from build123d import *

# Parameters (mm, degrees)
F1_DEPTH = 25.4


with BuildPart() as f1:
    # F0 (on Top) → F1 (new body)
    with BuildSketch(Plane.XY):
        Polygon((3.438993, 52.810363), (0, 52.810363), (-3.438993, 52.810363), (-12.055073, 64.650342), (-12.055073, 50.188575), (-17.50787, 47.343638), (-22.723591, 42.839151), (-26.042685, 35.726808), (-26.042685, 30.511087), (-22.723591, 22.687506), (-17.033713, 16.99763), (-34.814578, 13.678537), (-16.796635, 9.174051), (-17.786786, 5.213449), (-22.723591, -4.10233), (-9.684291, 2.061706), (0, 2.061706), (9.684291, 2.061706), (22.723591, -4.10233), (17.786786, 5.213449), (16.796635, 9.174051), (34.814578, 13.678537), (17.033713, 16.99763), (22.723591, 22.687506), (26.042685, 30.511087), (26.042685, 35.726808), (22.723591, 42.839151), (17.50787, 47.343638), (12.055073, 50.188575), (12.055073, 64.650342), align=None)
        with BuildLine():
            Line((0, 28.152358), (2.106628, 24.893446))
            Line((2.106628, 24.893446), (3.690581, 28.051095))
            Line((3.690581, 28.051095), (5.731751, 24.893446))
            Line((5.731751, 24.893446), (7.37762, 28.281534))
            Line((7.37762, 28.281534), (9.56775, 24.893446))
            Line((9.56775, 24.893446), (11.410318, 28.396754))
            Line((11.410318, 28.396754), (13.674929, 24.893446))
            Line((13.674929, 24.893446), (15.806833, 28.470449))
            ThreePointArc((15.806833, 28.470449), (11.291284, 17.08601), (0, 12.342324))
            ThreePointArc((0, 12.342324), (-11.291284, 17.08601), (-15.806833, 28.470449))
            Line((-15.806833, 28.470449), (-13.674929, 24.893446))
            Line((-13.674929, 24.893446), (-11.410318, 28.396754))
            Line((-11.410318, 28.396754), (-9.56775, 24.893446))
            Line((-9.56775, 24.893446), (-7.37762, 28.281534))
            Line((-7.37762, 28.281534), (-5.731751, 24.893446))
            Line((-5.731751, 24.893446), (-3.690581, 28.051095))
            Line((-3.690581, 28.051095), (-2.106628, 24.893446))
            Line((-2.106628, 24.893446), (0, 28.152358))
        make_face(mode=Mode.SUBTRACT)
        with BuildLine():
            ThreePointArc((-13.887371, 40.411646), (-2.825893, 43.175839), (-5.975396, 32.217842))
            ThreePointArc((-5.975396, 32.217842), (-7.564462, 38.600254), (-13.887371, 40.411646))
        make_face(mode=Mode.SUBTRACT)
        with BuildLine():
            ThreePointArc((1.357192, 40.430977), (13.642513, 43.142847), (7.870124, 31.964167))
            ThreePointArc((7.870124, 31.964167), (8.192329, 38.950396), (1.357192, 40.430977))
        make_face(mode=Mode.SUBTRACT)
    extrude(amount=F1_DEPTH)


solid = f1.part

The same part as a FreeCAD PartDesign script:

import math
import FreeCAD as App
import Part
import Sketcher
from FreeCAD import Vector
Q = App.Units.Quantity


def add_polygon(sketch, points):
    """Adds a closed chain of lines whose ends are joined by coincident constraints."""
    first, n = sketch.GeometryCount, len(points)
    for a, b in zip(points, points[1:] + points[:1]):
        sketch.addGeometry(Part.LineSegment(App.Vector(*a, 0), App.Vector(*b, 0)), False)
    for i in range(n):
        sketch.addConstraint(Sketcher.Constraint("Coincident", first + i, 2, first + (i + 1) % n, 1))

doc = App.newDocument("Part")
body = doc.addObject("PartDesign::Body", "Body")

sketch1 = body.newObject("Sketcher::SketchObject", "Sketch")
sketch1.AttachmentSupport = (doc.getObject("XY_Plane"), [""])
sketch1.MapMode = "FlatFace"
add_polygon(sketch1, [(3.4, 52.8), (-3.4, 52.8), (-12.1, 64.7), (-12.1, 50.2), (-17.5, 47.3), (-22.7, 42.8), (-26, 35.7), (-26, 30.5), (-22.7, 22.7), (-17, 17), (-34.8, 13.7), (-16.8, 9.2), (-17.8, 5.2), (-22.7, -4.1), (-9.7, 2.1), (9.7, 2.1), (22.7, -4.1), (17.8, 5.2), (16.8, 9.2), (34.8, 13.7), (17, 17), (22.7, 22.7), (26, 30.5), (26, 35.7), (22.7, 42.8), (17.5, 47.3), (12.1, 50.2), (12.1, 64.7)])
sketch1.addGeometry(Part.LineSegment(Vector(-2.1, 24.9, 0), Vector(0, 28.2, 0)), False)
sketch1.addGeometry(Part.LineSegment(Vector(0, 28.2, 0), Vector(2.1, 24.9, 0)), False)
sketch1.addGeometry(Part.LineSegment(Vector(2.1, 24.9, 0), Vector(3.7, 28.1, 0)), False)
sketch1.addGeometry(Part.LineSegment(Vector(3.7, 28.1, 0), Vector(5.7, 24.9, 0)), False)
sketch1.addGeometry(Part.LineSegment(Vector(5.7, 24.9, 0), Vector(7.4, 28.3, 0)), False)
sketch1.addGeometry(Part.LineSegment(Vector(7.4, 28.3, 0), Vector(9.6, 24.9, 0)), False)
sketch1.addGeometry(Part.LineSegment(Vector(9.6, 24.9, 0), Vector(11.4, 28.4, 0)), False)
sketch1.addGeometry(Part.LineSegment(Vector(11.4, 28.4, 0), Vector(13.7, 24.9, 0)), False)
sketch1.addGeometry(Part.LineSegment(Vector(13.7, 24.9, 0), Vector(15.8, 28.5, 0)), False)
sketch1.addGeometry(Part.ArcOfCircle(Part.Circle(Vector(0, 28.2, 0), Vector(0, 0, 1), 15.8), math.radians(-90), math.radians(1)), False)
sketch1.addGeometry(Part.ArcOfCircle(Part.Circle(Vector(0, 28.2, 0), Vector(0, 0, 1), 15.8), math.radians(179), math.radians(270)), False)
sketch1.addGeometry(Part.LineSegment(Vector(-15.8, 28.5, 0), Vector(-13.7, 24.9, 0)), False)
sketch1.addGeometry(Part.LineSegment(Vector(-13.7, 24.9, 0), Vector(-11.4, 28.4, 0)), False)
sketch1.addGeometry(Part.LineSegment(Vector(-11.4, 28.4, 0), Vector(-9.6, 24.9, 0)), False)
sketch1.addGeometry(Part.LineSegment(Vector(-9.6, 24.9, 0), Vector(-7.4, 28.3, 0)), False)
sketch1.addGeometry(Part.LineSegment(Vector(-7.4, 28.3, 0), Vector(-5.7, 24.9, 0)), False)
sketch1.addGeometry(Part.LineSegment(Vector(-5.7, 24.9, 0), Vector(-3.7, 28.1, 0)), False)
sketch1.addGeometry(Part.LineSegment(Vector(-3.7, 28.1, 0), Vector(-2.1, 24.9, 0)), False)
sketch1.addGeometry(Part.ArcOfCircle(Part.Circle(Vector(-12.3, 34, 0), Vector(0, 0, 1), 6.6), math.radians(-16), math.radians(104)), False)
sketch1.addGeometry(Part.ArcOfCircle(Part.Circle(Vector(-7.6, 38.6, 0), Vector(0, 0, 1), 6.6), math.radians(-76), math.radians(164)), False)
sketch1.addGeometry(Part.ArcOfCircle(Part.Circle(Vector(3.9, 35.6, 0), Vector(0, 0, 1), 5.4), math.radians(-43), math.radians(118)), False)
sketch1.addGeometry(Part.ArcOfCircle(Part.Circle(Vector(8.1, 38.9, 0), Vector(0, 0, 1), 6.9), math.radians(-92), math.radians(167)), False)
sketch1.addConstraint([
    Sketcher.Constraint("Coincident", 28, 2, 29, 1),
    Sketcher.Constraint("Coincident", 29, 2, 30, 1),
    Sketcher.Constraint("Coincident", 30, 2, 31, 1),
    Sketcher.Constraint("Coincident", 31, 2, 32, 1),
    Sketcher.Constraint("Coincident", 32, 2, 33, 1),
    Sketcher.Constraint("Coincident", 33, 2, 34, 1),
    Sketcher.Constraint("Coincident", 34, 2, 35, 1),
    Sketcher.Constraint("Coincident", 35, 2, 36, 1),
    Sketcher.Constraint("Coincident", 36, 2, 37, 2),
    Sketcher.Constraint("Tangent", 37, 1, 38, 2),
    Sketcher.Constraint("Coincident", 38, 1, 39, 1),
    Sketcher.Constraint("Coincident", 39, 2, 40, 1),
    Sketcher.Constraint("Coincident", 40, 2, 41, 1),
    Sketcher.Constraint("Coincident", 41, 2, 42, 1),
    Sketcher.Constraint("Coincident", 42, 2, 43, 1),
    Sketcher.Constraint("Coincident", 43, 2, 44, 1),
    Sketcher.Constraint("Coincident", 44, 2, 45, 1),
    Sketcher.Constraint("Coincident", 45, 2, 28, 1),
    Sketcher.Constraint("Coincident", 46, 1, 47, 1),
    Sketcher.Constraint("Coincident", 47, 2, 46, 2),
    Sketcher.Constraint("Coincident", 48, 1, 49, 1),
    Sketcher.Constraint("Coincident", 49, 2, 48, 2),
    Sketcher.Constraint("Horizontal", 0),
    Sketcher.Constraint("Vertical", 2),
    Sketcher.Constraint("Vertical", 6),
    Sketcher.Constraint("Horizontal", 14),
    Sketcher.Constraint("Vertical", 22),
    Sketcher.Constraint("Vertical", 26),
    Sketcher.Constraint("Coincident", 28, 2, 37, 3),
    Sketcher.Constraint("Equal", 37, 38),
    Sketcher.Constraint("Symmetric", 12, 2, 15, 2, -2),
    Sketcher.Constraint("Symmetric", 11, 2, 16, 2, -2),
    Sketcher.Constraint("Symmetric", 10, 2, 17, 2, -2),
    Sketcher.Constraint("Symmetric", 9, 2, 18, 2, -2),
    Sketcher.Constraint("Symmetric", 8, 2, 19, 2, -2),
    Sketcher.Constraint("Symmetric", 7, 2, 20, 2, -2),
    Sketcher.Constraint("Symmetric", 6, 2, 21, 2, -2),
    Sketcher.Constraint("Symmetric", 4, 2, 23, 2, -2),
    Sketcher.Constraint("Symmetric", 3, 2, 24, 2, -2),
    Sketcher.Constraint("Symmetric", 2, 2, 25, 2, -2),
    Sketcher.Constraint("Symmetric", 36, 2, 38, 1, -2),
    Sketcher.Constraint("Symmetric", 35, 2, 39, 2, -2),
    Sketcher.Constraint("Symmetric", 34, 2, 40, 2, -2),
    Sketcher.Constraint("Symmetric", 33, 2, 41, 2, -2),
    Sketcher.Constraint("Symmetric", 32, 2, 42, 2, -2),
    Sketcher.Constraint("Symmetric", 31, 2, 43, 2, -2),
    Sketcher.Constraint("Symmetric", 30, 2, 44, 2, -2),
    Sketcher.Constraint("Symmetric", 29, 2, 45, 2, -2),
    Sketcher.Constraint("PointOnObject", 37, 1, -2),
    Sketcher.Constraint("Perpendicular", 10, 11),
    Sketcher.Constraint("Perpendicular", 8, 20),
    Sketcher.Constraint("Parallel", 29, 31),
    Sketcher.Constraint("Parallel", 31, 33),
    Sketcher.Constraint("Parallel", 33, 35),
    Sketcher.Constraint("Horizontal", 5, 2, 22, 2),
    Sketcher.Constraint("Horizontal", 1, 2, 26, 2),
    Sketcher.Constraint("Horizontal", 29, 2, 31, 2),
    Sketcher.Constraint("Horizontal", 31, 2, 33, 2),
    Sketcher.Constraint("Horizontal", 33, 2, 35, 2),
    Sketcher.Constraint("Vertical", 4, 2, 7, 2),
    Sketcher.Constraint("Vertical", 7, 2, 12, 2),
    Sketcher.Constraint("Equal", 13, 15),
    Sketcher.Constraint("Equal", 1, 27),
    Sketcher.Constraint("Radius", 49, 6.947679),
    Sketcher.Constraint("DistanceX", -1, 1, 49, 3, Q("0.3202999 in")),
    Sketcher.Constraint("Radius", 37, 15.810034),
    Sketcher.Constraint("Radius", 46, 6.573978),
    Sketcher.Constraint("Radius", 47, 6.580544),
    Sketcher.Constraint("Radius", 48, 5.416564),
    Sketcher.Constraint("DistanceX", 33, 2, 35, 2, Q("0.1617 in")),
    Sketcher.Constraint("Distance", 4, 6.8916),
    Sketcher.Constraint("Distance", 8, 8.046701),
    Sketcher.Constraint("Distance", 32, 3.766699),
    Sketcher.Constraint("DistanceX", 14, 1, 14, 2, 19.368582),
    Sketcher.Constraint("DistanceY", 6, 2, 6, 1, 5.215721),
    Sketcher.Constraint("DistanceY", 38, 3, 48, 3, 7.4955),
    Sketcher.Constraint("DistanceX", 46, 3, 49, 3, 20.429201),
    Sketcher.Constraint("DistanceX", 5, 2, 46, 3, 13.7491),
    Sketcher.Constraint("DistanceY", 7, 2, 5, 2, 13.039302),
    Sketcher.Constraint("DistanceX", 6, 2, 11, 2, 8.255899),
    Sketcher.Constraint("DistanceX", 12, 2, 13, 2, 13.0393),
    Sketcher.Constraint("DistanceY", 13, 2, 7, 2, 20.6258),
    Sketcher.Constraint("DistanceX", 31, 2, 33, 2, 3.835999),
    Sketcher.Constraint("DistanceX", 3, 2, 47, 2, 3.620499),
    Sketcher.Constraint("DistanceX", 47, 2, 2, 2, 1.832298),
    Sketcher.Constraint("Distance", 3, 6.150338),
    Sketcher.Constraint("Distance", 5, 7.848682),
    Sketcher.Constraint("Distance", 10, 18.572471),
    Sketcher.Constraint("Distance", 33, 4.034329),
    Sketcher.Constraint("Distance", 34, 3.958311),
    Sketcher.Constraint("Distance", 36, 4.164128),
    Sketcher.Constraint("DistanceX", 0, 2, 0, 1, 6.877986),
    Sketcher.Constraint("DistanceY", 2, 2, 2, 1, 14.461767),
    Sketcher.Constraint("DistanceY", -1, 1, 37, 3, 28.152358),
    Sketcher.Constraint("DistanceY", -1, 1, 46, 3, 34.033791),
    Sketcher.Constraint("DistanceX", 47, 3, -1, 1, 7.559739),
    Sketcher.Constraint("DistanceX", -1, 1, 48, 3, 3.899031),
    Sketcher.Constraint("DistanceY", -1, 1, 49, 3, 38.906771),
    Sketcher.Constraint("DistanceY", -1, 1, 1, 2, 64.650342),
    Sketcher.Constraint("DistanceX", 3, 2, -1, 1, 17.50787),
    Sketcher.Constraint("DistanceY", -1, 1, 10, 2, 9.174051),
    Sketcher.Constraint("DistanceY", -1, 1, 11, 2, 5.213449),
    Sketcher.Constraint("DistanceY", 12, 2, -1, 1, 4.10233),
    Sketcher.Constraint("DistanceX", -1, 1, 29, 2, 2.106628),
    Sketcher.Constraint("DistanceX", -1, 1, 30, 2, 3.690581),
    Sketcher.Constraint("DistanceX", -1, 1, 31, 2, 5.731751),
    Sketcher.Constraint("DistanceY", 47, 3, 0, 2, 14.205548),
    Sketcher.Constraint("DistanceY", 9, 2, 7, 2, 9.008969),
])
pad1 = body.newObject("PartDesign::Pad", "Pad")
pad1.Profile = sketch1
pad1.Length = Q("1 in")

doc.recompute()
